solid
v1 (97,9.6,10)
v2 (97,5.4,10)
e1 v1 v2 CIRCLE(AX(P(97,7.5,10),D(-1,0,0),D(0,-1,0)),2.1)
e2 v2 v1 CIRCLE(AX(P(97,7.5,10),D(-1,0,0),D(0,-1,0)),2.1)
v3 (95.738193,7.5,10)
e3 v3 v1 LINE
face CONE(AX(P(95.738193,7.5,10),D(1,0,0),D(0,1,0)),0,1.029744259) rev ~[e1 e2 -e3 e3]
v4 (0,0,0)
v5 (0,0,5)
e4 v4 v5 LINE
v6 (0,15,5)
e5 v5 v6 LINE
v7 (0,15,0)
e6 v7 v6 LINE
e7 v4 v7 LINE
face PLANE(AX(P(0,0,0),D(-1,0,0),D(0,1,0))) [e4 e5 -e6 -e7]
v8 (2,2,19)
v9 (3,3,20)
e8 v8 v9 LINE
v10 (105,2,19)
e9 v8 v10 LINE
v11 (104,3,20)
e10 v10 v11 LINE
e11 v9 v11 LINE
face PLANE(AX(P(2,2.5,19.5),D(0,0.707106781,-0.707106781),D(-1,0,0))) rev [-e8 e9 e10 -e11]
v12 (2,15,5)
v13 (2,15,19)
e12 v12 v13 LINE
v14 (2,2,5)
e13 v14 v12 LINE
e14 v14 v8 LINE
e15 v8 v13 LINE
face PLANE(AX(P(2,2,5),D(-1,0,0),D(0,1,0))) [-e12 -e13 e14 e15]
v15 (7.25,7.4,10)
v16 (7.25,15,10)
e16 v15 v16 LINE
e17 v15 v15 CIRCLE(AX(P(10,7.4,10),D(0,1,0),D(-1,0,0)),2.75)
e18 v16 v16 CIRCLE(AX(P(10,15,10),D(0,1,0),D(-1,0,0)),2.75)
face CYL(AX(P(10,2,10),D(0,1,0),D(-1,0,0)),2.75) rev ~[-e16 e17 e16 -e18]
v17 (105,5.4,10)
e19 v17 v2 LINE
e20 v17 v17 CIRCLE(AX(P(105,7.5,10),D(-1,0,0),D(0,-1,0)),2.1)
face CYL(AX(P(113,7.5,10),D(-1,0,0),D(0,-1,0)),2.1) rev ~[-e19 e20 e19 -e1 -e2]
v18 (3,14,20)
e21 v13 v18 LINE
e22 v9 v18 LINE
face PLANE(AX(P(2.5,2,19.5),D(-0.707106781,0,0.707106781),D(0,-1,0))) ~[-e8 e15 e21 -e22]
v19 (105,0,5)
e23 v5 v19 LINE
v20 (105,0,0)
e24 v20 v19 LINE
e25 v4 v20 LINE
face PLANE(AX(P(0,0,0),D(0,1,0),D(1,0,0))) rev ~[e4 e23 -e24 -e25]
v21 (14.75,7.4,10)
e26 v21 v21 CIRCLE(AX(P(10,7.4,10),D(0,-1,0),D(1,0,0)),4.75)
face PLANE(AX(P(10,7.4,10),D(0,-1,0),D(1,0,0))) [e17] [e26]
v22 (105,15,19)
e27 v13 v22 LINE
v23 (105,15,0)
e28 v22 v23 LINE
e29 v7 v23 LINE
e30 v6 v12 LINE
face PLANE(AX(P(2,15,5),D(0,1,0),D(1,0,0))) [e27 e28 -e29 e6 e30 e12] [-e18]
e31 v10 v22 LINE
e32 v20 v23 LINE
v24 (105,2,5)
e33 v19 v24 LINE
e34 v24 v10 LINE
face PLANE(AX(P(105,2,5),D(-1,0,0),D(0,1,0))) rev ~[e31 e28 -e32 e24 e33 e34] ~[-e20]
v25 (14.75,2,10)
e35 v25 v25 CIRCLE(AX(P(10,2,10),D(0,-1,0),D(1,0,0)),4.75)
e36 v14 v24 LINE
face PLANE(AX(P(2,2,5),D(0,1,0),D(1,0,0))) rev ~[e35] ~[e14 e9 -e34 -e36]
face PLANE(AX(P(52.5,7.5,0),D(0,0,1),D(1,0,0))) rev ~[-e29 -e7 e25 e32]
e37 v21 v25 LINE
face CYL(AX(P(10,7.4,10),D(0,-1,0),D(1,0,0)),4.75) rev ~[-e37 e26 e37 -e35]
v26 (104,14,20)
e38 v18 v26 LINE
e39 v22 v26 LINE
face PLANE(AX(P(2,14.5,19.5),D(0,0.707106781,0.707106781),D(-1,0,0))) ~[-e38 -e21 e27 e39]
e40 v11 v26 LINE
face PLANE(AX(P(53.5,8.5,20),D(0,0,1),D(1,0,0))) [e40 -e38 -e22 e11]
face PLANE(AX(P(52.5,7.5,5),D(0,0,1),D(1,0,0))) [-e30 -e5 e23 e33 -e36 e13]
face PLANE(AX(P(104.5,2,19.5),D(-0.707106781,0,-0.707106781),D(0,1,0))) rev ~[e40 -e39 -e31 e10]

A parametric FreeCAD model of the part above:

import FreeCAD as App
import Part
import Sketcher

V = App.Vector
Q = App.Units.Quantity


def edges_at(feature, points):
    """Names of the edges that pass closest to the given points."""
    edges = feature.Shape.Edges
    near = lambda p: min(range(len(edges)), key=lambda i: edges[i].distToShape(Part.Vertex(*p))[0])
    return sorted({f"Edge{near(p) + 1}" for p in points})

doc = App.newDocument("Part")
body = doc.addObject("PartDesign::Body", "Body")

sketch1 = body.newObject("Sketcher::SketchObject", "Sketch")
sketch1.AttachmentSupport = (doc.getObject("XY_Plane"), [""])
sketch1.MapMode = "FlatFace"
sketch1.addGeometry(Part.LineSegment(V(0, 15, 0), V(0, 0, 0)), False)
sketch1.addGeometry(Part.LineSegment(V(0, 0, 0), V(105, 0, 0)), False)
sketch1.addGeometry(Part.LineSegment(V(105, 0, 0), V(105, 15, 0)), False)
sketch1.addGeometry(Part.LineSegment(V(105, 15, 0), V(0, 15, 0)), False)
sketch1.addConstraint(Sketcher.Constraint("Coincident", 0, 2, 1, 1))
sketch1.addConstraint(Sketcher.Constraint("Coincident", 1, 2, 2, 1))
sketch1.addConstraint(Sketcher.Constraint("Coincident", 2, 2, 3, 1))
sketch1.addConstraint(Sketcher.Constraint("Coincident", 3, 2, 0, 1))
sketch1.addConstraint(Sketcher.Constraint("Vertical", 0))
sketch1.addConstraint(Sketcher.Constraint("Horizontal", 1))
sketch1.addConstraint(Sketcher.Constraint("Vertical", 2))
sketch1.addConstraint(Sketcher.Constraint("Horizontal", 3))
sketch1.addConstraint(Sketcher.Constraint("Coincident", 0, 2, -1, 1))
sketch1.addConstraint(Sketcher.Constraint("DistanceX", 1, 1, 1, 2, Q("105 mm")))
sketch1.addConstraint(Sketcher.Constraint("DistanceY", 0, 2, 0, 1, Q("15 mm")))
pad1 = body.newObject("PartDesign::Pad", "Pad")
pad1.Profile = sketch1
pad1.Length = 5

sketch2 = body.newObject("Sketcher::SketchObject", "Sketch001")
sketch2.AttachmentSupport = (doc.getObject("XY_Plane"), [""])
sketch2.MapMode = "FlatFace"
sketch2.AttachmentOffset = App.Placement(V(0, 0, 5), App.Rotation())
sketch2.addGeometry(Part.LineSegment(V(2, 15, 0), V(2, 2, 0)), False)
sketch2.addGeometry(Part.LineSegment(V(2, 2, 0), V(105, 2, 0)), False)
sketch2.addGeometry(Part.LineSegment(V(105, 2, 0), V(105, 15, 0)), False)
sketch2.addGeometry(Part.LineSegment(V(105, 15, 0), V(2, 15, 0)), False)
sketch2.addConstraint(Sketcher.Constraint("Coincident", 0, 2, 1, 1))
sketch2.addConstraint(Sketcher.Constraint("Coincident", 1, 2, 2, 1))
sketch2.addConstraint(Sketcher.Constraint("Coincident", 2, 2, 3, 1))
sketch2.addConstraint(Sketcher.Constraint("Coincident", 3, 2, 0, 1))
sketch2.addConstraint(Sketcher.Constraint("Vertical", 0))
sketch2.addConstraint(Sketcher.Constraint("Horizontal", 1))
sketch2.addConstraint(Sketcher.Constraint("Vertical", 2))
sketch2.addConstraint(Sketcher.Constraint("Horizontal", 3))
sketch2.addConstraint(Sketcher.Constraint("DistanceX", 1, 1, 1, 2, Q("103 mm")))
sketch2.addConstraint(Sketcher.Constraint("DistanceY", 0, 2, 0, 1, Q("13 mm")))
sketch2.addConstraint(Sketcher.Constraint("DistanceX", -1, 1, 0, 2, Q("2 mm")))
sketch2.addConstraint(Sketcher.Constraint("DistanceY", -1, 1, 0, 2, Q("2 mm")))
pad2 = body.newObject("PartDesign::Pad", "Pad001")
pad2.Profile = sketch2
pad2.Length = 15

sketch3 = body.newObject("Sketcher::SketchObject", "Sketch002")
sketch3.AttachmentSupport = (doc.getObject("YZ_Plane"), [""])
sketch3.MapMode = "FlatFace"
sketch3.AttachmentOffset = App.Placement(V(0, 0, 105), App.Rotation())
sketch3.addGeometry(Part.Circle(V(7.5, 10, 0), V(0, 0, 1), 2.1), False)
sketch3.addConstraint(Sketcher.Constraint("Diameter", 0, Q("4.2 mm")))
sketch3.addConstraint(Sketcher.Constraint("DistanceY", -1, 1, 0, 3, Q("10 mm")))
sketch3.addConstraint(Sketcher.Constraint("DistanceX", -1, 1, 0, 3, Q("7.5 mm")))
doc.recompute()
hole = body.newObject("PartDesign::Hole", "Hole")
hole.Profile = sketch3
hole.ThreadType = "None"
hole.Diameter = 4.2
hole.DepthType = "Dimension"
hole.Depth = 8
hole.DrillPoint = "Angled"
hole.DrillPointAngle = 118

sketch4 = body.newObject("Sketcher::SketchObject", "Sketch003")
sketch4.AttachmentSupport = (doc.getObject("XZ_Plane"), [""])
sketch4.MapMode = "FlatFace"
sketch4.AttachmentOffset = App.Placement(V(0, 0, -2), App.Rotation())
sketch4.addGeometry(Part.Circle(V(10, 10, 0), V(0, 0, 1), 2.75), False)
sketch4.addConstraint(Sketcher.Constraint("Diameter", 0, Q("5.5 mm")))
sketch4.addConstraint(Sketcher.Constraint("DistanceX", -1, 1, 0, 3, Q("10 mm")))
sketch4.addConstraint(Sketcher.Constraint("DistanceY", -1, 1, 0, 3, Q("10 mm")))
doc.recompute()
hole2 = body.newObject("PartDesign::Hole", "Hole001")
hole2.Profile = sketch4
hole2.ThreadType = "None"
hole2.Diameter = 5.5
hole2.DepthType = "ThroughAll"
hole2.HoleCutType = "Counterbore"
hole2.HoleCutDiameter = 9.5
hole2.HoleCutDepth = 5.4
doc.recompute()

chamfer = body.newObject("PartDesign::Chamfer", "Chamfer")
chamfer.Base = (hole2, edges_at(hole2, [
    (53.5, 2, 20),
    (53.5, 15, 20),
    (105, 8.5, 20),
    (2, 8.5, 20),
]))
chamfer.Size = 1

doc.recompute()
